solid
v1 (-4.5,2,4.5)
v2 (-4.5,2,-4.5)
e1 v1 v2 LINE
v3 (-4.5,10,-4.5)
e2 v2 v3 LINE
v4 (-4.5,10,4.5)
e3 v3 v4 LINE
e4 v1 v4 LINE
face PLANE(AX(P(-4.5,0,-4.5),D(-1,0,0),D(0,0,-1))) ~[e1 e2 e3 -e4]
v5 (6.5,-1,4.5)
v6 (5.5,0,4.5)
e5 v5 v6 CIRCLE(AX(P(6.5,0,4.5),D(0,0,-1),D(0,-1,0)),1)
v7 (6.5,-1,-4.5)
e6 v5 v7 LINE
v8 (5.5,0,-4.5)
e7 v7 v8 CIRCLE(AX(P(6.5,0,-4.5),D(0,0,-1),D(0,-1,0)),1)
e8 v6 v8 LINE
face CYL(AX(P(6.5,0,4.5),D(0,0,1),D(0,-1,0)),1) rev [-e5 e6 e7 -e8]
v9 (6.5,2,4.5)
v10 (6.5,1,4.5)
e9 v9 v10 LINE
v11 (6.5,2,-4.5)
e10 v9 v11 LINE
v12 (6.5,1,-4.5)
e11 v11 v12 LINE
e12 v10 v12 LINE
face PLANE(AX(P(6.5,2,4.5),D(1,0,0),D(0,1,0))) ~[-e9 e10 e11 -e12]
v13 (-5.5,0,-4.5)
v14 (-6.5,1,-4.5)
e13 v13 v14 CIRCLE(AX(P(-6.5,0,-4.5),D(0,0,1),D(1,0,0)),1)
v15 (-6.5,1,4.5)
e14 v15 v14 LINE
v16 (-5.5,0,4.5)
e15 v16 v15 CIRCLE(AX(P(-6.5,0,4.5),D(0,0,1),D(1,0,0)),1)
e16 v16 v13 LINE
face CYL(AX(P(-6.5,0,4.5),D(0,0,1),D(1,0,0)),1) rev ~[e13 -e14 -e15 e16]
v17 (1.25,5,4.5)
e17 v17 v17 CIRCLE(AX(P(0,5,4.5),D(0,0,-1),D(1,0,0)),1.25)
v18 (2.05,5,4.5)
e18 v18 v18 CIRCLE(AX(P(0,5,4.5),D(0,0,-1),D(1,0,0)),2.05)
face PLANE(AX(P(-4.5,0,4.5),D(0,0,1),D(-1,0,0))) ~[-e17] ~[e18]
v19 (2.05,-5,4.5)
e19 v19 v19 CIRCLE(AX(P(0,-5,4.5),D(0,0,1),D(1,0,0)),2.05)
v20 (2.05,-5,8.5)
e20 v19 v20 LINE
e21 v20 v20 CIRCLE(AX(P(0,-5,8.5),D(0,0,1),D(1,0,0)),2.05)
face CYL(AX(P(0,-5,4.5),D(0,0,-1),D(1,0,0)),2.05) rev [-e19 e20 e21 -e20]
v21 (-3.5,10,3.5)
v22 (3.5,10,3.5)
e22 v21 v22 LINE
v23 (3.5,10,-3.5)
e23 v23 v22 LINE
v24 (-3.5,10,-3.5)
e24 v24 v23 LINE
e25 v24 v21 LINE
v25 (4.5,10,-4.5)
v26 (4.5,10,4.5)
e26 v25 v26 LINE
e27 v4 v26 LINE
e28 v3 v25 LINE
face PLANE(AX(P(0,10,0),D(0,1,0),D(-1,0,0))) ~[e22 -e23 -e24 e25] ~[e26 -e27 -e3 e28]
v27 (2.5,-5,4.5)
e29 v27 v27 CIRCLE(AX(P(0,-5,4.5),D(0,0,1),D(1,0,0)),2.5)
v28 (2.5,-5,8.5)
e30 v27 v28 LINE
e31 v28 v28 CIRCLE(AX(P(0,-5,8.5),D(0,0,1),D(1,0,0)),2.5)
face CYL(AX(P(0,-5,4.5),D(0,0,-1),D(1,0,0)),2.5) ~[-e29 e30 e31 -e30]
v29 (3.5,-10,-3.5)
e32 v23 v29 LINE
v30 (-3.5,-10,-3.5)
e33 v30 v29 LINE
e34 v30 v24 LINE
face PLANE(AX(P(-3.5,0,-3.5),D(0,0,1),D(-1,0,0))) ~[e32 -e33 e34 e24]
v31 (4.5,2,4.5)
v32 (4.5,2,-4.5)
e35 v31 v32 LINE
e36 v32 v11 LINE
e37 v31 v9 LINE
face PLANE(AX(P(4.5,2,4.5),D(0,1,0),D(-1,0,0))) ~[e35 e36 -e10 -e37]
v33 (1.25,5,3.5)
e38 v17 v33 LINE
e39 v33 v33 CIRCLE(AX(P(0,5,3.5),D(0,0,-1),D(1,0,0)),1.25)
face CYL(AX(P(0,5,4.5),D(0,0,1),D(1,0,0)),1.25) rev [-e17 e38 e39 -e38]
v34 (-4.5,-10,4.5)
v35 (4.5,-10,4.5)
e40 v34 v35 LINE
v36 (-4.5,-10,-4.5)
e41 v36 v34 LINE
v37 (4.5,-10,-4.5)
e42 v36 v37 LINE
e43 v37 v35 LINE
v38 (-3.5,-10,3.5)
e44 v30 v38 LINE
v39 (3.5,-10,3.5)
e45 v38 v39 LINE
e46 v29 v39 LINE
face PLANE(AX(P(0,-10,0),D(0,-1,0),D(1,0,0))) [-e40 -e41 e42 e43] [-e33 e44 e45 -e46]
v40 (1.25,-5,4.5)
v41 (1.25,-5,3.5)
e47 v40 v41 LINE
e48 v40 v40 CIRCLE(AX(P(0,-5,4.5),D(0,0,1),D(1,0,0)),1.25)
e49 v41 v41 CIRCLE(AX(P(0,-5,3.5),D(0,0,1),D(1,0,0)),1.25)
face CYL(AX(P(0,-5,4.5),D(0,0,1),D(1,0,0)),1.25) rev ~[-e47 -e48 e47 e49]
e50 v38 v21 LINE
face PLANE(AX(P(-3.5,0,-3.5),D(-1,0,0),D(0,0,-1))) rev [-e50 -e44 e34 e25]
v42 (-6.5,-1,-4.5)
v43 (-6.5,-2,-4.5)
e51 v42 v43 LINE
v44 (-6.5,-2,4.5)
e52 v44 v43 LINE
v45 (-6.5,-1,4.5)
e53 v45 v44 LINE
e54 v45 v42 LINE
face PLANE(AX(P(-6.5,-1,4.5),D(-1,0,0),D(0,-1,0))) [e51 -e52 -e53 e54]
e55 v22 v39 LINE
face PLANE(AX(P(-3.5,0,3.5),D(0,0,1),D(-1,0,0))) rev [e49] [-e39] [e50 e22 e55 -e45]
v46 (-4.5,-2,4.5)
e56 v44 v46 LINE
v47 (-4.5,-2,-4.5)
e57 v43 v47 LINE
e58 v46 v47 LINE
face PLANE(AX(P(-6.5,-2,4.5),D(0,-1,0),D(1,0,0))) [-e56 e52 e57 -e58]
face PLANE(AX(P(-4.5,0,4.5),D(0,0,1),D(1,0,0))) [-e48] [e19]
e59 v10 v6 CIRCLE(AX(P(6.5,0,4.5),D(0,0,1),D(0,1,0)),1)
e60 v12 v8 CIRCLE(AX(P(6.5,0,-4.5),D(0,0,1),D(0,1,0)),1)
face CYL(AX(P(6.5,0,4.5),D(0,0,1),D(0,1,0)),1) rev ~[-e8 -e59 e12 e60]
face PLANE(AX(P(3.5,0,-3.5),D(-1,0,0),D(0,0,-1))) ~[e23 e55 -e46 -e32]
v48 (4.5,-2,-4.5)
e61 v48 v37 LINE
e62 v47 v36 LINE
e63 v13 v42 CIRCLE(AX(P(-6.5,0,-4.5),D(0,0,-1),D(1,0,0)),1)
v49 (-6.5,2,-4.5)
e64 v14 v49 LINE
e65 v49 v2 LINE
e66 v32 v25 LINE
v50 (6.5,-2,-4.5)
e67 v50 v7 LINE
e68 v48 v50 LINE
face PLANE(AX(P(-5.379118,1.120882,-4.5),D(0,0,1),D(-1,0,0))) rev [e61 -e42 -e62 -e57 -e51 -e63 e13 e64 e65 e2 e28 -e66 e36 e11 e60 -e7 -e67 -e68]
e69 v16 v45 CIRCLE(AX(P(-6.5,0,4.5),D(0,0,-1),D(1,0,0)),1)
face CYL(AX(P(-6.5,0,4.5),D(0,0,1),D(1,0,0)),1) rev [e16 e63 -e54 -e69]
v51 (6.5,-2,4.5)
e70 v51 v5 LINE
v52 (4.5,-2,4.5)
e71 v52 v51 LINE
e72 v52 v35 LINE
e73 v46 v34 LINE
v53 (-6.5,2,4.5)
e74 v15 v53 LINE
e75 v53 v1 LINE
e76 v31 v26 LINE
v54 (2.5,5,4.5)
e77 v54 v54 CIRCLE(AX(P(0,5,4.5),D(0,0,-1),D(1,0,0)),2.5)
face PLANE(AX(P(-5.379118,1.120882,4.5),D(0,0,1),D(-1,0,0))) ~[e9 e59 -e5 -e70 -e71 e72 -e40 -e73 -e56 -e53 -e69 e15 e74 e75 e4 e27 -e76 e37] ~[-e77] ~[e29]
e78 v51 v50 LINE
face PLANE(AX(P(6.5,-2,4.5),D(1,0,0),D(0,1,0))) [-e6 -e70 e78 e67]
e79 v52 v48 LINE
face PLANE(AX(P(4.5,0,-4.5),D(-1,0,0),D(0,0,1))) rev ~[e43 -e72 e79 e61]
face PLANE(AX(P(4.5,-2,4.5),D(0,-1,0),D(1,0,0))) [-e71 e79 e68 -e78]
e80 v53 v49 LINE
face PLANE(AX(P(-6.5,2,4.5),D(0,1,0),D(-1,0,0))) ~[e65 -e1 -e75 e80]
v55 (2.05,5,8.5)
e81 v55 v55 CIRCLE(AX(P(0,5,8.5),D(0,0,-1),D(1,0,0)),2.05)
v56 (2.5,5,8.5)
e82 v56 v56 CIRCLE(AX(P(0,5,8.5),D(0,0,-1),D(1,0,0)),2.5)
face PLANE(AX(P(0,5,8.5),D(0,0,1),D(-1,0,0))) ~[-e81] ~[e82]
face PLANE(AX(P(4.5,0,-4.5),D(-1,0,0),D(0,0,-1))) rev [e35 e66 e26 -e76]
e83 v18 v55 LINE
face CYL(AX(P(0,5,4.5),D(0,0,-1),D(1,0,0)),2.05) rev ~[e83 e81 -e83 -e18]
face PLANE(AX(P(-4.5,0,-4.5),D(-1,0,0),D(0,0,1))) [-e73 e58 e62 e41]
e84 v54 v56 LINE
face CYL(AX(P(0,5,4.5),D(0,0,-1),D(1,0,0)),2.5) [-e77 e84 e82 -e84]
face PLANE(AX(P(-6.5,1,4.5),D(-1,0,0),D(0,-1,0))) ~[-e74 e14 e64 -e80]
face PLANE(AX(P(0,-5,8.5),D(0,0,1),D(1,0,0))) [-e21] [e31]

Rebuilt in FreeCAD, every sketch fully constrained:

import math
import FreeCAD as App
import Part
import Sketcher

V = App.Vector


def add_polygon(sketch, points):
    """Adds a closed chain of lines whose ends are joined by coincident constraints."""
    first, n = sketch.GeometryCount, len(points)
    for a, b in zip(points, points[1:] + points[:1]):
        sketch.addGeometry(Part.LineSegment(App.Vector(*a, 0), App.Vector(*b, 0)), False)
    for i in range(n):
        sketch.addConstraint(Sketcher.Constraint("Coincident", first + i, 2, first + (i + 1) % n, 1))

doc = App.newDocument("Part")
body = doc.addObject("PartDesign::Body", "Body")

# Sketch on XZ plane
sketch1 = body.newObject("Sketcher::SketchObject", "Sketch")
sketch1.AttachmentSupport = (doc.getObject("XZ_Plane"), [""])
sketch1.MapMode = "FlatFace"
add_polygon(sketch1, [(-4, 4), (-4, -4), (4, -4), (4, 4)])  # lines 0-3
add_polygon(sketch1, [(4, -4), (-4, -4), (-4, 4), (4, 4)])  # lines 4-7
sketch1.addConstraint([
    Sketcher.Constraint("Vertical", 0),
    Sketcher.Constraint("Horizontal", 1),
    Sketcher.Constraint("Vertical", 2),
    Sketcher.Constraint("Horizontal", 3),
    Sketcher.Constraint("Horizontal", 4),
    Sketcher.Constraint("Vertical", 5),
    Sketcher.Constraint("Horizontal", 6),
    Sketcher.Constraint("Vertical", 7),
    Sketcher.Constraint("Symmetric", 0, 2, 2, 2, -1, 1),
    Sketcher.Constraint("Symmetric", 4, 2, 6, 2, -1, 1),
    Sketcher.Constraint("Equal", 3, 0),
    Sketcher.Constraint("Equal", 6, 5),
    Sketcher.Constraint("DistanceX", 1, 1, 1, 2, 9.0),
    Sketcher.Constraint("DistanceX", 4, 2, 4, 1, 7.0),
])
pad1 = body.newObject("PartDesign::Pad", "Pad")
pad1.Profile = sketch1
pad1.Length = 10

# Sketch on XY plane
sketch2 = body.newObject("Sketcher::SketchObject", "Sketch001")
sketch2.AttachmentSupport = (doc.getObject("XY_Plane"), [""])
sketch2.MapMode = "FlatFace"
sketch2.AttachmentOffset = App.Placement(V(0, 0, 4.5), App.Rotation())
sketch2.addGeometry(Part.Circle(V(0, -5, 0), V(0, 0, 1), 1.2), False)
sketch2.addConstraint([
    Sketcher.Constraint("PointOnObject", 0, 3, -2),
    Sketcher.Constraint("Diameter", 0, 2.5),
    Sketcher.Constraint("DistanceY", 0, 3, -1, 1, 5.0),
])
pocket1 = body.newObject("PartDesign::Pocket", "Pocket")
pocket1.Profile = sketch2
pocket1.Length = 1

# Sketch on XY plane
sketch3 = body.newObject("Sketcher::SketchObject", "Sketch002")
sketch3.AttachmentSupport = (doc.getObject("XY_Plane"), [""])
sketch3.MapMode = "FlatFace"
sketch3.AttachmentOffset = App.Placement(V(0, 0, 4.5), App.Rotation())
sketch3.addGeometry([
    Part.Circle(V(0, -5, 0), V(0, 0, 1), 2.5),
    Part.Circle(V(0, -5, 0), V(0, 0, 1), 2),
], False)
sketch3.addConstraint([
    Sketcher.Constraint("Coincident", 1, 3, 0, 3),
    Sketcher.Constraint("PointOnObject", 0, 3, -2),
    Sketcher.Constraint("Diameter", 0, 5.0),
    Sketcher.Constraint("Diameter", 1, 4.1),
    Sketcher.Constraint("DistanceY", 0, 3, -1, 1, 5.0),
])
pad2 = body.newObject("PartDesign::Pad", "Pad001")
pad2.Profile = sketch3
pad2.Length = 4

# Sketch on XY plane
sketch4 = body.newObject("Sketcher::SketchObject", "Sketch003")
sketch4.AttachmentSupport = (doc.getObject("XY_Plane"), [""])
sketch4.MapMode = "FlatFace"
sketch4.AttachmentOffset = App.Placement(V(0, 0, 4.5), App.Rotation())
sketch4.addGeometry([
    Part.LineSegment(V(-4.5, -2, 0), V(-4.5, 0, 0)),  # 0
    Part.LineSegment(V(-4.5, 0, 0), V(-5.5, 0, 0)),  # 1
    Part.ArcOfCircle(Part.Circle(V(-6.5, 0, 0), V(0, 0, 1), 1), math.radians(-90), math.radians(0)),  # 2
    Part.LineSegment(V(-6.5, -1, 0), V(-6.5, -2, 0)),  # 3
    Part.LineSegment(V(-6.5, -2, 0), V(-4.5, -2, 0)),  # 4
    Part.LineSegment(V(5.5, 0, 0), V(4.5, 0, 0)),  # 5
    Part.LineSegment(V(4.5, 0, 0), V(4.5, -2, 0)),  # 6
    Part.LineSegment(V(4.5, -2, 0), V(6.5, -2, 0)),  # 7
    Part.LineSegment(V(6.5, -2, 0), V(6.5, -1, 0)),  # 8
    Part.ArcOfCircle(Part.Circle(V(6.5, 0, 0), V(0, 0, 1), 1), math.radians(180), math.radians(270)),  # 9
], False)
sketch4.addConstraint([
    Sketcher.Constraint("Coincident", 0, 2, 1, 1),
    Sketcher.Constraint("Coincident", 1, 2, 2, 2),
    Sketcher.Constraint("Coincident", 2, 1, 3, 1),
    Sketcher.Constraint("Coincident", 3, 2, 4, 1),
    Sketcher.Constraint("Coincident", 4, 2, 0, 1),
    Sketcher.Constraint("Coincident", 5, 2, 6, 1),
    Sketcher.Constraint("Coincident", 6, 2, 7, 1),
    Sketcher.Constraint("Coincident", 7, 2, 8, 1),
    Sketcher.Constraint("Coincident", 8, 2, 9, 2),
    Sketcher.Constraint("Coincident", 9, 1, 5, 1),
    Sketcher.Constraint("Vertical", 0),
    Sketcher.Constraint("Horizontal", 1),
    Sketcher.Constraint("Vertical", 3),
    Sketcher.Constraint("Horizontal", 4),
    Sketcher.Constraint("Horizontal", 5),
    Sketcher.Constraint("Vertical", 6),
    Sketcher.Constraint("Horizontal", 7),
    Sketcher.Constraint("Vertical", 8),
    Sketcher.Constraint("Equal", 2, 9),
    Sketcher.Constraint("Symmetric", 2, 3, 9, 3, -1, 1),
    Sketcher.Constraint("Symmetric", 0, 2, 5, 2, -1, 1),
    Sketcher.Constraint("Symmetric", 3, 2, 7, 2, -2),
    Sketcher.Constraint("PointOnObject", 2, 3, -1),
    Sketcher.Constraint("PointOnObject", 0, 2, -1),
    Sketcher.Constraint("Vertical", 9, 3, 7, 2),
    Sketcher.Constraint("Equal", 7, 0),
    Sketcher.Constraint("Radius", 2, 1.0),
    Sketcher.Constraint("DistanceX", 1, 2, 1, 1, 1.0),
    Sketcher.Constraint("DistanceX", 2, 3, 9, 3, 13.0),
])
pad3 = body.newObject("PartDesign::Pad", "Pad002")
pad3.Profile = sketch4
pad3.Type = "UpToLast"
pad3.Reversed = True
body2 = doc.addObject("PartDesign::Body", "Body001")
doc.recompute()

body2.BaseFeature = body
doc.recompute()

mirroring = doc.addObject("Part::Mirroring", "Mirroring")
mirroring.Source = body
mirroring.Base = V(0, 0, 0)
mirroring.Normal = V(0, 1, 0)
body3 = doc.addObject("PartDesign::Body", "Body002")
body3.BaseFeature = mirroring
boolean = body2.newObject("PartDesign::Boolean", "Boolean")
boolean.Type = "Fuse"
boolean.addObjects([body3])
doc.recompute()
mirroring.Visibility = False

doc.recompute()
